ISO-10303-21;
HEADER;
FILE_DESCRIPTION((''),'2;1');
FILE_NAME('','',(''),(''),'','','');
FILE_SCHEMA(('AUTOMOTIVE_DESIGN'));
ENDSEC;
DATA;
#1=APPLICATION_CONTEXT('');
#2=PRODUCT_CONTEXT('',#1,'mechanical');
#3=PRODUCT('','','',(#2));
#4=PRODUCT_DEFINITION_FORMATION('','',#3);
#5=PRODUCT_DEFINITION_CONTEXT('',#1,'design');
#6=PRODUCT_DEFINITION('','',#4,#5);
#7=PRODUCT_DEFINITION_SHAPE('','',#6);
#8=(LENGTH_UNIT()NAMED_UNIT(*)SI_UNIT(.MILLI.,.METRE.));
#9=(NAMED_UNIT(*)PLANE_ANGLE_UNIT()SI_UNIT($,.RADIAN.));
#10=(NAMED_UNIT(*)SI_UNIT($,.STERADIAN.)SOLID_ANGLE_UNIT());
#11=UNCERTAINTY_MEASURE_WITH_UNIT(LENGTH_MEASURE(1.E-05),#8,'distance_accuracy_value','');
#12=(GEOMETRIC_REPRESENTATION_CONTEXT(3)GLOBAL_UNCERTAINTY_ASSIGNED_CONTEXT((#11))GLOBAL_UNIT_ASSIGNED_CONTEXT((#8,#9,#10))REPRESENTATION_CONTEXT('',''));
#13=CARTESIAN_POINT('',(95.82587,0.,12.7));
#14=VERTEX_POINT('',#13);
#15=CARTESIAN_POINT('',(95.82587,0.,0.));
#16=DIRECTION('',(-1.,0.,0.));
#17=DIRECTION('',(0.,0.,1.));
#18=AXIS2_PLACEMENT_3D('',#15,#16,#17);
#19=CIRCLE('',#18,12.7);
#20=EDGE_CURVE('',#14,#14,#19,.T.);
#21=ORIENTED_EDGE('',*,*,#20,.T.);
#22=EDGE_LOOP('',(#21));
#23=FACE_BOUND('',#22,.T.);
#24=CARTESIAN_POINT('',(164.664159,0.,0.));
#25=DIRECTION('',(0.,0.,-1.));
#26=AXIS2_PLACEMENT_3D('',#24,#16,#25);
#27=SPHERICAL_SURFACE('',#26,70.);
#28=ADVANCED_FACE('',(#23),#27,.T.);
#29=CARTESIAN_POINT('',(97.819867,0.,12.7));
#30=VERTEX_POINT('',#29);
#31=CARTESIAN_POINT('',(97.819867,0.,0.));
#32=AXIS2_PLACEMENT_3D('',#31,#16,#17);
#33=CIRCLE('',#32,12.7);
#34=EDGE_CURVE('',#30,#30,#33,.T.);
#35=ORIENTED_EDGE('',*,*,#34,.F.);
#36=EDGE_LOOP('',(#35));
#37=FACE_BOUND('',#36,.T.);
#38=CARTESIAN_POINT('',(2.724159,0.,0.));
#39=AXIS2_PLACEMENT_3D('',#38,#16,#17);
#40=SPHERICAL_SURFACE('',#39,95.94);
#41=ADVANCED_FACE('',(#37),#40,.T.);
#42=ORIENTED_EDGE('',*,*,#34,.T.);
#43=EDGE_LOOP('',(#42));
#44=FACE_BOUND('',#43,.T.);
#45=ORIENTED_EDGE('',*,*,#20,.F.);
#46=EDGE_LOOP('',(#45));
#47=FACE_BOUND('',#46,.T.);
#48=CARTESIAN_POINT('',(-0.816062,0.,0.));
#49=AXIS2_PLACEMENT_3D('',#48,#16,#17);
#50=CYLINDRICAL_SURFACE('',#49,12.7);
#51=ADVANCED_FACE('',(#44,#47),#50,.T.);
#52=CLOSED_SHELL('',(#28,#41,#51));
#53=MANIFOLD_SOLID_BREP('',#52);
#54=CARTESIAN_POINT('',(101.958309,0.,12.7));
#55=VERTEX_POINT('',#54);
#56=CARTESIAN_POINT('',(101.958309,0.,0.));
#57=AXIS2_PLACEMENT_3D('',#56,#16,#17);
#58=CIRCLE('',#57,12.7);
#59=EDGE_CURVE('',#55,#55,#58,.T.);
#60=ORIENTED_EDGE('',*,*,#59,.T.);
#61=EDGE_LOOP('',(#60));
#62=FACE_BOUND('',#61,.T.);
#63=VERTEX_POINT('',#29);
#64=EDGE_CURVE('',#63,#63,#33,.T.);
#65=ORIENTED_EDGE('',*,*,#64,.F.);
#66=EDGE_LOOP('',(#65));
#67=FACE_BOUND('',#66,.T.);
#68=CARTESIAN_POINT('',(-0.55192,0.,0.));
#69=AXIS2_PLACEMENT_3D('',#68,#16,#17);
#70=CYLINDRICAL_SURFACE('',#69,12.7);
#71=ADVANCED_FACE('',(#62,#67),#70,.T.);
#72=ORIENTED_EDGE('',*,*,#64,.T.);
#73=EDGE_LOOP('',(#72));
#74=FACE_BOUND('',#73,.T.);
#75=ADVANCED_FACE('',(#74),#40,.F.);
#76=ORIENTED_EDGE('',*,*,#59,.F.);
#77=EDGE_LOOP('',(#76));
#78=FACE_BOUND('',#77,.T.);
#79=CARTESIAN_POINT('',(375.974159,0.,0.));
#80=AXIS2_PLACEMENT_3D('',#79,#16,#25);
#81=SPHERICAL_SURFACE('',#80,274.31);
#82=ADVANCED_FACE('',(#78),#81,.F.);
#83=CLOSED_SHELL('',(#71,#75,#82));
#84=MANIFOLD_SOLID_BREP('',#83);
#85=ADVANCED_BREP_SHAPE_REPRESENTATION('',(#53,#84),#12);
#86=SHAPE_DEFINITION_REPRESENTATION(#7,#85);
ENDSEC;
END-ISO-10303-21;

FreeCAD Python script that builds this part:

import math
import FreeCAD as App
import Part
import Sketcher

V = App.Vector

doc = App.newDocument("Part")
params = doc.addObject("Spreadsheet::Sheet", "Params")
for row, (alias, value) in enumerate([
    ("sketch1_radius", "70 mm"),
    ("sketch1_width", "4 mm"),
    ("sketch1_radius2", "95.94 mm"),
    ("revolution_angle", "360 deg"),
    ("sketch2_width", "3 mm"),
    ("sketch2_radius", "95.94 mm"),
    ("sketch2_radius2", "274.309998 mm"),
    ("revolution2_angle", "360 deg"),
], start=1):
    params.set(f"A{row}", alias)
    params.set(f"B{row}", "=" + value)
    params.setAlias(f"B{row}", alias)

body = doc.addObject("PartDesign::Body", "Body")

# Sketch on XZ plane
sketch1 = body.newObject("Sketcher::SketchObject", "Sketch")
sketch1.AttachmentSupport = (doc.getObject("XZ_Plane"), [""])
sketch1.MapMode = "FlatFace"
sketch1.addGeometry(Part.ArcOfCircle(Part.Circle(V(164.664159, 0, 0), V(0, 0, 1), 70), math.radians(180), math.radians(190.452981)), False)
sketch1.addGeometry(Part.LineSegment(V(94.664159, 0, 0), V(98.664159, 0, 0)), False)
sketch1.addGeometry(Part.ArcOfCircle(Part.Circle(V(2.724159, 0, 0), V(0, 0, 1), 95.94), math.radians(-7.606821), math.radians(0)), False)
sketch1.addGeometry(Part.LineSegment(V(97.819867, -12.7, 0), V(95.82587, -12.7, 0)), False)
sketch1.addConstraint(Sketcher.Constraint("Coincident", 0, 1, 1, 1))
sketch1.addConstraint(Sketcher.Constraint("Coincident", 1, 2, 2, 2))
sketch1.addConstraint(Sketcher.Constraint("Coincident", 2, 1, 3, 1))
sketch1.addConstraint(Sketcher.Constraint("Coincident", 3, 2, 0, 2))
sketch1.addConstraint(Sketcher.Constraint("Horizontal", 1))
sketch1.addConstraint(Sketcher.Constraint("Horizontal", 3))
sketch1.addConstraint(Sketcher.Constraint("PointOnObject", 0, 3, -1))
sketch1.addConstraint(Sketcher.Constraint("PointOnObject", 2, 3, -1))
sketch1.addConstraint(Sketcher.Constraint("PointOnObject", 0, 1, -1))
sketch1.addConstraint(Sketcher.Constraint("Radius", 0, 70.0))
sketch1.addConstraint(Sketcher.Constraint("DistanceX", 1, 1, 1, 2, 4.0))
sketch1.addConstraint(Sketcher.Constraint("Radius", 2, 95.94))
sketch1.addConstraint(Sketcher.Constraint("DistanceY", 2, 1, -1, 1, 12.7))
sketch1.addConstraint(Sketcher.Constraint("DistanceX", -1, 1, 0, 3, 164.664159))
sketch1.setExpression("Constraints[9]", "Params.sketch1_radius")
sketch1.setExpression("Constraints[10]", "Params.sketch1_width")
sketch1.setExpression("Constraints[11]", "Params.sketch1_radius2")
revolution = body.newObject("PartDesign::Revolution", "Revolution")
revolution.Profile = sketch1
revolution.ReferenceAxis = (sketch1, ["H_Axis"])
revolution.setExpression("Angle", "Params.revolution_angle")
body2 = doc.addObject("PartDesign::Body", "Body001")

# Sketch on XZ plane
sketch2 = body2.newObject("Sketcher::SketchObject", "Sketch001")
sketch2.AttachmentSupport = (doc.getObject("XZ_Plane001"), [""])
sketch2.MapMode = "FlatFace"
sketch2.addGeometry(Part.LineSegment(V(101.958309, -12.7, 0), V(97.819867, -12.7, 0)), False)
sketch2.addGeometry(Part.ArcOfCircle(Part.Circle(V(2.724159, 0, 0), V(0, 0, 1), 95.94), math.radians(-7.606821), math.radians(0)), False)
sketch2.addGeometry(Part.LineSegment(V(98.664159, 0, 0), V(101.664159, 0, 0)), False)
sketch2.addGeometry(Part.ArcOfCircle(Part.Circle(V(375.974158, 0, 0), V(0, 0, 1), 274.309998), math.radians(180), math.radians(182.653628)), False)
sketch2.addConstraint(Sketcher.Constraint("Coincident", 0, 2, 1, 1))
sketch2.addConstraint(Sketcher.Constraint("Coincident", 1, 2, 2, 1))
sketch2.addConstraint(Sketcher.Constraint("Coincident", 2, 2, 3, 1))
sketch2.addConstraint(Sketcher.Constraint("Coincident", 3, 2, 0, 1))
sketch2.addConstraint(Sketcher.Constraint("Horizontal", 0))
sketch2.addConstraint(Sketcher.Constraint("Horizontal", 2))
sketch2.addConstraint(Sketcher.Constraint("PointOnObject", 1, 3, -1))
sketch2.addConstraint(Sketcher.Constraint("PointOnObject", 3, 3, -1))
sketch2.addConstraint(Sketcher.Constraint("PointOnObject", 1, 2, -1))
sketch2.addConstraint(Sketcher.Constraint("DistanceX", 2, 1, 2, 2, 3.0))
sketch2.addConstraint(Sketcher.Constraint("Radius", 1, 95.94))
sketch2.addConstraint(Sketcher.Constraint("Radius", 3, 274.309998))
sketch2.addConstraint(Sketcher.Constraint("DistanceY", 0, 2, -1, 1, 12.7))
sketch2.addConstraint(Sketcher.Constraint("DistanceX", -1, 1, 1, 3, 2.724159))
sketch2.setExpression("Constraints[9]", "Params.sketch2_width")
sketch2.setExpression("Constraints[10]", "Params.sketch2_radius")
sketch2.setExpression("Constraints[11]", "Params.sketch2_radius2")
revolution2 = body2.newObject("PartDesign::Revolution", "Revolution001")
revolution2.Profile = sketch2
revolution2.ReferenceAxis = (sketch2, ["H_Axis"])
revolution2.setExpression("Angle", "Params.revolution2_angle")

doc.recompute()
